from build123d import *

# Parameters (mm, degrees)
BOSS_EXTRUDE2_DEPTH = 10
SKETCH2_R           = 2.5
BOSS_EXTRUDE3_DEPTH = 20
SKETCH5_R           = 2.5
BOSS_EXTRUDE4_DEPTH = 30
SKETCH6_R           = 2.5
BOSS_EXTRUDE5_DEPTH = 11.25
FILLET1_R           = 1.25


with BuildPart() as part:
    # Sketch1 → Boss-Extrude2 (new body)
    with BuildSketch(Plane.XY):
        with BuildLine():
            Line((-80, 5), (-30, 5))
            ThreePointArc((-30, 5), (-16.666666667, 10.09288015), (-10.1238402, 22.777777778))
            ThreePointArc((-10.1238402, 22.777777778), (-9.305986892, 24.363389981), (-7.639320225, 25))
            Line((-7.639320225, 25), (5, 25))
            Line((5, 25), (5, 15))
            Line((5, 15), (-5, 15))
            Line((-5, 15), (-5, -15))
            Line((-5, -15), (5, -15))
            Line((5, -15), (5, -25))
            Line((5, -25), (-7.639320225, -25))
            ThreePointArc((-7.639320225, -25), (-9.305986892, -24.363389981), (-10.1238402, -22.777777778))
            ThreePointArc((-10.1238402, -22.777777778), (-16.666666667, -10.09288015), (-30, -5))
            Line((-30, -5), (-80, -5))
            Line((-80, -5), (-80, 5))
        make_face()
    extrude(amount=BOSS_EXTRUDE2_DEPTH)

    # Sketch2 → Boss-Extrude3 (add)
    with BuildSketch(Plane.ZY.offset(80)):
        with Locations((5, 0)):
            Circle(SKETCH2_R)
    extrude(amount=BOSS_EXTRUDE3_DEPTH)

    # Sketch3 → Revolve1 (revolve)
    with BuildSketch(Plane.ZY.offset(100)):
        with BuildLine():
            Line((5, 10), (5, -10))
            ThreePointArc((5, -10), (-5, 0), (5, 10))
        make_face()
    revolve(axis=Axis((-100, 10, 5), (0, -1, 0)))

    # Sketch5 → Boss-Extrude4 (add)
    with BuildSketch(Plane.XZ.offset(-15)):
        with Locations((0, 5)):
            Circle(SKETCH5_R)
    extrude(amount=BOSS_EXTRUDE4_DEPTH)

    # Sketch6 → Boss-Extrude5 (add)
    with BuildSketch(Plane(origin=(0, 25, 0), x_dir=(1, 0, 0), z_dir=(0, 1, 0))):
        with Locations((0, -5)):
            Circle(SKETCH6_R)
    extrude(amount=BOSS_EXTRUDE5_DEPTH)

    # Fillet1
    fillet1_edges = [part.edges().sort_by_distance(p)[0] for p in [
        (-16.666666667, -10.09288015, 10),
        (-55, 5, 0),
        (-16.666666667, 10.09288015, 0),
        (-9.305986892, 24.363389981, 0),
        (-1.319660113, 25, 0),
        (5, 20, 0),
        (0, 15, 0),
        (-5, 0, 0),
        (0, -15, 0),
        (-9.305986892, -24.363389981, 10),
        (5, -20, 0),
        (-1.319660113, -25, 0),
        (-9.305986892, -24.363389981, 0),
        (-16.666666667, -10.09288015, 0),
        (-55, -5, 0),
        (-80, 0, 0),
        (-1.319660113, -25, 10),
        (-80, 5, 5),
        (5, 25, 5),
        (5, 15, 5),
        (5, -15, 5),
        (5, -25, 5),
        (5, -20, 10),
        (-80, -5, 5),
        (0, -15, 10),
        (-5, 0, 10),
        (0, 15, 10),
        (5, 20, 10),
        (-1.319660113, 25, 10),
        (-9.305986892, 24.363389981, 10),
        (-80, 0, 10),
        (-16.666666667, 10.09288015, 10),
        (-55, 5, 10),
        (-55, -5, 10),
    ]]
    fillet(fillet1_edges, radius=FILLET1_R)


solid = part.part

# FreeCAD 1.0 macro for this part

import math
import FreeCAD as App
import Part
import Sketcher

V = App.Vector


def edges_at(feature, points):
    """Names of the edges that pass closest to the given points."""
    edges = feature.Shape.Edges
    near = lambda p: min(range(len(edges)), key=lambda i: edges[i].distToShape(Part.Vertex(*p))[0])
    return sorted({f"Edge{near(p) + 1}" for p in points})

doc = App.newDocument("Part")
body = doc.addObject("PartDesign::Body", "Body")

# Sketch on XY plane
sketch1 = body.newObject("Sketcher::SketchObject", "Sketch")
sketch1.AttachmentSupport = (doc.getObject("XY_Plane"), [""])
sketch1.MapMode = "FlatFace"
sketch1.addGeometry(Part.LineSegment(V(-30, 5, 0), V(-80, 5, 0)), False)
sketch1.addGeometry(Part.LineSegment(V(-80, 5, 0), V(-80, -5, 0)), False)
sketch1.addGeometry(Part.LineSegment(V(-80, -5, 0), V(-30, -5, 0)), False)
sketch1.addGeometry(Part.ArcOfCircle(Part.Circle(V(-30, -25, 0), V(0, 0, 1), 20), math.radians(6), math.radians(90)), False)
sketch1.addGeometry(Part.ArcOfCircle(Part.Circle(V(-7.6, -22.5, 0), V(0, 0, 1), 2.5), math.radians(-174), math.radians(-90)), False)
sketch1.addGeometry(Part.LineSegment(V(-7.6, -25, 0), V(5, -25, 0)), False)
sketch1.addGeometry(Part.LineSegment(V(5, -25, 0), V(5, -15, 0)), False)
sketch1.addGeometry(Part.LineSegment(V(5, -15, 0), V(-5, -15, 0)), False)
sketch1.addGeometry(Part.LineSegment(V(-5, -15, 0), V(-5, 15, 0)), False)
sketch1.addGeometry(Part.LineSegment(V(-5, 15, 0), V(5, 15, 0)), False)
sketch1.addGeometry(Part.LineSegment(V(5, 15, 0), V(5, 25, 0)), False)
sketch1.addGeometry(Part.LineSegment(V(5, 25, 0), V(-7.6, 25, 0)), False)
sketch1.addGeometry(Part.ArcOfCircle(Part.Circle(V(-7.6, 22.5, 0), V(0, 0, 1), 2.5), math.radians(90), math.radians(174)), False)
sketch1.addGeometry(Part.ArcOfCircle(Part.Circle(V(-30, 25, 0), V(0, 0, 1), 20), math.radians(-90), math.radians(-6)), False)
sketch1.addConstraint(Sketcher.Constraint("Coincident", 0, 2, 1, 1))
sketch1.addConstraint(Sketcher.Constraint("Coincident", 1, 2, 2, 1))
sketch1.addConstraint(Sketcher.Constraint("Tangent", 2, 2, 3, 2))
sketch1.addConstraint(Sketcher.Constraint("Tangent", 3, 1, 4, 1))
sketch1.addConstraint(Sketcher.Constraint("Tangent", 4, 2, 5, 1))
sketch1.addConstraint(Sketcher.Constraint("Coincident", 5, 2, 6, 1))
sketch1.addConstraint(Sketcher.Constraint("Coincident", 6, 2, 7, 1))
sketch1.addConstraint(Sketcher.Constraint("Coincident", 7, 2, 8, 1))
sketch1.addConstraint(Sketcher.Constraint("Coincident", 8, 2, 9, 1))
sketch1.addConstraint(Sketcher.Constraint("Coincident", 9, 2, 10, 1))
sketch1.addConstraint(Sketcher.Constraint("Coincident", 10, 2, 11, 1))
sketch1.addConstraint(Sketcher.Constraint("Tangent", 11, 2, 12, 1))
sketch1.addConstraint(Sketcher.Constraint("Tangent", 12, 2, 13, 2))
sketch1.addConstraint(Sketcher.Constraint("Tangent", 13, 1, 0, 1))
sketch1.addConstraint(Sketcher.Constraint("Horizontal", 0))
sketch1.addConstraint(Sketcher.Constraint("Vertical", 1))
sketch1.addConstraint(Sketcher.Constraint("Horizontal", 2))
sketch1.addConstraint(Sketcher.Constraint("Horizontal", 5))
sketch1.addConstraint(Sketcher.Constraint("Vertical", 6))
sketch1.addConstraint(Sketcher.Constraint("Horizontal", 7))
sketch1.addConstraint(Sketcher.Constraint("Vertical", 8))
sketch1.addConstraint(Sketcher.Constraint("Horizontal", 9))
sketch1.addConstraint(Sketcher.Constraint("Vertical", 10))
sketch1.addConstraint(Sketcher.Constraint("Horizontal", 11))
sketch1.addConstraint(Sketcher.Constraint("Equal", 4, 12))
sketch1.addConstraint(Sketcher.Constraint("Equal", 3, 13))
sketch1.addConstraint(Sketcher.Constraint("Symmetric", 6, 2, 8, 2, -1, 1))
sketch1.addConstraint(Sketcher.Constraint("Symmetric", 4, 3, 12, 3, -1))
sketch1.addConstraint(Sketcher.Constraint("Horizontal", 3, 3, 4, 2))
sketch1.addConstraint(Sketcher.Constraint("Horizontal", 13, 3, 10, 2))
sketch1.addConstraint(Sketcher.Constraint("Vertical", 6, 2, 9, 2))
sketch1.addConstraint(Sketcher.Constraint("Equal", 9, 1))
sketch1.addConstraint(Sketcher.Constraint("Equal", 1, 6))
sketch1.addConstraint(Sketcher.Constraint("Radius", 3, 20.0))
sketch1.addConstraint(Sketcher.Constraint("Radius", 4, 2.5))
sketch1.addConstraint(Sketcher.Constraint("DistanceX", 0, 2, 0, 1, 50.0))
sketch1.addConstraint(Sketcher.Constraint("DistanceX", 7, 2, 7, 1, 10.0))
sketch1.addConstraint(Sketcher.Constraint("DistanceX", 3, 3, -1, 1, 30.0))
pad1 = body.newObject("PartDesign::Pad", "Pad")
pad1.Profile = sketch1
pad1.Length = 10

# Sketch on YZ plane
sketch2 = body.newObject("Sketcher::SketchObject", "Sketch001")
sketch2.AttachmentSupport = (doc.getObject("YZ_Plane"), [""])
sketch2.MapMode = "FlatFace"
sketch2.AttachmentOffset = App.Placement(V(0, 0, -80), App.Rotation())
sketch2.addGeometry(Part.Circle(V(0, 5, 0), V(0, 0, 1), 2.5), False)
sketch2.addConstraint(Sketcher.Constraint("PointOnObject", 0, 3, -2))
sketch2.addConstraint(Sketcher.Constraint("Diameter", 0, 5.0))
sketch2.addConstraint(Sketcher.Constraint("DistanceY", -1, 1, 0, 3, 5.0))
pad2 = body.newObject("PartDesign::Pad", "Pad001")
pad2.Profile = sketch2
pad2.Length = 20
pad2.Reversed = True

# Sketch on YZ plane
sketch3 = body.newObject("Sketcher::SketchObject", "Sketch002")
sketch3.AttachmentSupport = (doc.getObject("YZ_Plane"), [""])
sketch3.MapMode = "FlatFace"
sketch3.AttachmentOffset = App.Placement(V(0, 0, -100), App.Rotation())
sketch3.addGeometry(Part.LineSegment(V(-10, 5, 0), V(10, 5, 0)), False)
sketch3.addGeometry(Part.ArcOfCircle(Part.Circle(V(0, 5, 0), V(0, 0, 1), 10), math.radians(180), math.radians(360)), False)
sketch3.addGeometry(Part.LineSegment(V(10, 5, 0), V(-10, 5, 0)), True)  # axis
sketch3.addConstraint(Sketcher.Constraint("Coincident", 0, 1, 1, 1))
sketch3.addConstraint(Sketcher.Constraint("Coincident", 1, 2, 0, 2))
sketch3.addConstraint(Sketcher.Constraint("Horizontal", 0))
sketch3.addConstraint(Sketcher.Constraint("Horizontal", 2))
sketch3.addConstraint(Sketcher.Constraint("Coincident", 2, 1, 1, 2))
sketch3.addConstraint(Sketcher.Constraint("PointOnObject", 1, 3, -2))
sketch3.addConstraint(Sketcher.Constraint("Horizontal", 1, 3, 0, 1))
sketch3.addConstraint(Sketcher.Constraint("Equal", 0, 2))
sketch3.addConstraint(Sketcher.Constraint("Radius", 1, 10.0))
sketch3.addConstraint(Sketcher.Constraint("DistanceY", -1, 1, 1, 3, 5.0))
revolution = body.newObject("PartDesign::Revolution", "Revolution")
revolution.Profile = sketch3
revolution.ReferenceAxis = (sketch3, ["Axis0"])
revolution.Angle = 360

# Sketch on XZ plane
sketch4 = body.newObject("Sketcher::SketchObject", "Sketch003")
sketch4.AttachmentSupport = (doc.getObject("XZ_Plane"), [""])
sketch4.MapMode = "FlatFace"
sketch4.AttachmentOffset = App.Placement(V(0, 0, -15), App.Rotation())
sketch4.addGeometry(Part.Circle(V(0, 5, 0), V(0, 0, 1), 2.5), False)
sketch4.addConstraint(Sketcher.Constraint("PointOnObject", 0, 3, -2))
sketch4.addConstraint(Sketcher.Constraint("Diameter", 0, 5.0))
sketch4.addConstraint(Sketcher.Constraint("DistanceY", -1, 1, 0, 3, 5.0))
pad3 = body.newObject("PartDesign::Pad", "Pad002")
pad3.Profile = sketch4
pad3.Length = 30

# Sketch on XZ plane
sketch5 = body.newObject("Sketcher::SketchObject", "Sketch004")
sketch5.AttachmentSupport = (doc.getObject("XZ_Plane"), [""])
sketch5.MapMode = "FlatFace"
sketch5.AttachmentOffset = App.Placement(V(0, 0, -25), App.Rotation())
sketch5.addGeometry(Part.Circle(V(0, 5, 0), V(0, 0, 1), 2.5), False)
sketch5.addConstraint(Sketcher.Constraint("PointOnObject", 0, 3, -2))
sketch5.addConstraint(Sketcher.Constraint("Diameter", 0, 5.0))
sketch5.addConstraint(Sketcher.Constraint("DistanceY", -1, 1, 0, 3, 5.0))
pad4 = body.newObject("PartDesign::Pad", "Pad003")
pad4.Profile = sketch5
pad4.Length = 11.25
pad4.Reversed = True
doc.recompute()

fillet = body.newObject("PartDesign::Fillet", "Fillet")
fillet.Base = (pad4, edges_at(pad4, [
    (-16.667, -10.093, 10),
    (-55, 5, 0),
    (-16.667, 10.093, 0),
    (-9.306, 24.363, 0),
    (-1.32, 25, 0),
    (5, 20, 0),
    (0, 15, 0),
    (-5, 0, 0),
    (0, -15, 0),
    (-9.306, -24.363, 10),
    (5, -20, 0),
    (-1.32, -25, 0),
    (-9.306, -24.363, 0),
    (-16.667, -10.093, 0),
    (-55, -5, 0),
    (-80, 0, 0),
    (-1.32, -25, 10),
    (-80, 5, 5),
    (5, 25, 5),
    (5, 15, 5),
    (5, -15, 5),
    (5, -25, 5),
    (5, -20, 10),
    (-80, -5, 5),
    (0, -15, 10),
    (-5, 0, 10),
    (0, 15, 10),
    (5, 20, 10),
    (-1.32, 25, 10),
    (-9.306, 24.363, 10),
    (-80, 0, 10),
    (-16.667, 10.093, 10),
    (-55, 5, 10),
    (-55, -5, 10),
]))
fillet.Radius = 1.25

doc.recompute()
